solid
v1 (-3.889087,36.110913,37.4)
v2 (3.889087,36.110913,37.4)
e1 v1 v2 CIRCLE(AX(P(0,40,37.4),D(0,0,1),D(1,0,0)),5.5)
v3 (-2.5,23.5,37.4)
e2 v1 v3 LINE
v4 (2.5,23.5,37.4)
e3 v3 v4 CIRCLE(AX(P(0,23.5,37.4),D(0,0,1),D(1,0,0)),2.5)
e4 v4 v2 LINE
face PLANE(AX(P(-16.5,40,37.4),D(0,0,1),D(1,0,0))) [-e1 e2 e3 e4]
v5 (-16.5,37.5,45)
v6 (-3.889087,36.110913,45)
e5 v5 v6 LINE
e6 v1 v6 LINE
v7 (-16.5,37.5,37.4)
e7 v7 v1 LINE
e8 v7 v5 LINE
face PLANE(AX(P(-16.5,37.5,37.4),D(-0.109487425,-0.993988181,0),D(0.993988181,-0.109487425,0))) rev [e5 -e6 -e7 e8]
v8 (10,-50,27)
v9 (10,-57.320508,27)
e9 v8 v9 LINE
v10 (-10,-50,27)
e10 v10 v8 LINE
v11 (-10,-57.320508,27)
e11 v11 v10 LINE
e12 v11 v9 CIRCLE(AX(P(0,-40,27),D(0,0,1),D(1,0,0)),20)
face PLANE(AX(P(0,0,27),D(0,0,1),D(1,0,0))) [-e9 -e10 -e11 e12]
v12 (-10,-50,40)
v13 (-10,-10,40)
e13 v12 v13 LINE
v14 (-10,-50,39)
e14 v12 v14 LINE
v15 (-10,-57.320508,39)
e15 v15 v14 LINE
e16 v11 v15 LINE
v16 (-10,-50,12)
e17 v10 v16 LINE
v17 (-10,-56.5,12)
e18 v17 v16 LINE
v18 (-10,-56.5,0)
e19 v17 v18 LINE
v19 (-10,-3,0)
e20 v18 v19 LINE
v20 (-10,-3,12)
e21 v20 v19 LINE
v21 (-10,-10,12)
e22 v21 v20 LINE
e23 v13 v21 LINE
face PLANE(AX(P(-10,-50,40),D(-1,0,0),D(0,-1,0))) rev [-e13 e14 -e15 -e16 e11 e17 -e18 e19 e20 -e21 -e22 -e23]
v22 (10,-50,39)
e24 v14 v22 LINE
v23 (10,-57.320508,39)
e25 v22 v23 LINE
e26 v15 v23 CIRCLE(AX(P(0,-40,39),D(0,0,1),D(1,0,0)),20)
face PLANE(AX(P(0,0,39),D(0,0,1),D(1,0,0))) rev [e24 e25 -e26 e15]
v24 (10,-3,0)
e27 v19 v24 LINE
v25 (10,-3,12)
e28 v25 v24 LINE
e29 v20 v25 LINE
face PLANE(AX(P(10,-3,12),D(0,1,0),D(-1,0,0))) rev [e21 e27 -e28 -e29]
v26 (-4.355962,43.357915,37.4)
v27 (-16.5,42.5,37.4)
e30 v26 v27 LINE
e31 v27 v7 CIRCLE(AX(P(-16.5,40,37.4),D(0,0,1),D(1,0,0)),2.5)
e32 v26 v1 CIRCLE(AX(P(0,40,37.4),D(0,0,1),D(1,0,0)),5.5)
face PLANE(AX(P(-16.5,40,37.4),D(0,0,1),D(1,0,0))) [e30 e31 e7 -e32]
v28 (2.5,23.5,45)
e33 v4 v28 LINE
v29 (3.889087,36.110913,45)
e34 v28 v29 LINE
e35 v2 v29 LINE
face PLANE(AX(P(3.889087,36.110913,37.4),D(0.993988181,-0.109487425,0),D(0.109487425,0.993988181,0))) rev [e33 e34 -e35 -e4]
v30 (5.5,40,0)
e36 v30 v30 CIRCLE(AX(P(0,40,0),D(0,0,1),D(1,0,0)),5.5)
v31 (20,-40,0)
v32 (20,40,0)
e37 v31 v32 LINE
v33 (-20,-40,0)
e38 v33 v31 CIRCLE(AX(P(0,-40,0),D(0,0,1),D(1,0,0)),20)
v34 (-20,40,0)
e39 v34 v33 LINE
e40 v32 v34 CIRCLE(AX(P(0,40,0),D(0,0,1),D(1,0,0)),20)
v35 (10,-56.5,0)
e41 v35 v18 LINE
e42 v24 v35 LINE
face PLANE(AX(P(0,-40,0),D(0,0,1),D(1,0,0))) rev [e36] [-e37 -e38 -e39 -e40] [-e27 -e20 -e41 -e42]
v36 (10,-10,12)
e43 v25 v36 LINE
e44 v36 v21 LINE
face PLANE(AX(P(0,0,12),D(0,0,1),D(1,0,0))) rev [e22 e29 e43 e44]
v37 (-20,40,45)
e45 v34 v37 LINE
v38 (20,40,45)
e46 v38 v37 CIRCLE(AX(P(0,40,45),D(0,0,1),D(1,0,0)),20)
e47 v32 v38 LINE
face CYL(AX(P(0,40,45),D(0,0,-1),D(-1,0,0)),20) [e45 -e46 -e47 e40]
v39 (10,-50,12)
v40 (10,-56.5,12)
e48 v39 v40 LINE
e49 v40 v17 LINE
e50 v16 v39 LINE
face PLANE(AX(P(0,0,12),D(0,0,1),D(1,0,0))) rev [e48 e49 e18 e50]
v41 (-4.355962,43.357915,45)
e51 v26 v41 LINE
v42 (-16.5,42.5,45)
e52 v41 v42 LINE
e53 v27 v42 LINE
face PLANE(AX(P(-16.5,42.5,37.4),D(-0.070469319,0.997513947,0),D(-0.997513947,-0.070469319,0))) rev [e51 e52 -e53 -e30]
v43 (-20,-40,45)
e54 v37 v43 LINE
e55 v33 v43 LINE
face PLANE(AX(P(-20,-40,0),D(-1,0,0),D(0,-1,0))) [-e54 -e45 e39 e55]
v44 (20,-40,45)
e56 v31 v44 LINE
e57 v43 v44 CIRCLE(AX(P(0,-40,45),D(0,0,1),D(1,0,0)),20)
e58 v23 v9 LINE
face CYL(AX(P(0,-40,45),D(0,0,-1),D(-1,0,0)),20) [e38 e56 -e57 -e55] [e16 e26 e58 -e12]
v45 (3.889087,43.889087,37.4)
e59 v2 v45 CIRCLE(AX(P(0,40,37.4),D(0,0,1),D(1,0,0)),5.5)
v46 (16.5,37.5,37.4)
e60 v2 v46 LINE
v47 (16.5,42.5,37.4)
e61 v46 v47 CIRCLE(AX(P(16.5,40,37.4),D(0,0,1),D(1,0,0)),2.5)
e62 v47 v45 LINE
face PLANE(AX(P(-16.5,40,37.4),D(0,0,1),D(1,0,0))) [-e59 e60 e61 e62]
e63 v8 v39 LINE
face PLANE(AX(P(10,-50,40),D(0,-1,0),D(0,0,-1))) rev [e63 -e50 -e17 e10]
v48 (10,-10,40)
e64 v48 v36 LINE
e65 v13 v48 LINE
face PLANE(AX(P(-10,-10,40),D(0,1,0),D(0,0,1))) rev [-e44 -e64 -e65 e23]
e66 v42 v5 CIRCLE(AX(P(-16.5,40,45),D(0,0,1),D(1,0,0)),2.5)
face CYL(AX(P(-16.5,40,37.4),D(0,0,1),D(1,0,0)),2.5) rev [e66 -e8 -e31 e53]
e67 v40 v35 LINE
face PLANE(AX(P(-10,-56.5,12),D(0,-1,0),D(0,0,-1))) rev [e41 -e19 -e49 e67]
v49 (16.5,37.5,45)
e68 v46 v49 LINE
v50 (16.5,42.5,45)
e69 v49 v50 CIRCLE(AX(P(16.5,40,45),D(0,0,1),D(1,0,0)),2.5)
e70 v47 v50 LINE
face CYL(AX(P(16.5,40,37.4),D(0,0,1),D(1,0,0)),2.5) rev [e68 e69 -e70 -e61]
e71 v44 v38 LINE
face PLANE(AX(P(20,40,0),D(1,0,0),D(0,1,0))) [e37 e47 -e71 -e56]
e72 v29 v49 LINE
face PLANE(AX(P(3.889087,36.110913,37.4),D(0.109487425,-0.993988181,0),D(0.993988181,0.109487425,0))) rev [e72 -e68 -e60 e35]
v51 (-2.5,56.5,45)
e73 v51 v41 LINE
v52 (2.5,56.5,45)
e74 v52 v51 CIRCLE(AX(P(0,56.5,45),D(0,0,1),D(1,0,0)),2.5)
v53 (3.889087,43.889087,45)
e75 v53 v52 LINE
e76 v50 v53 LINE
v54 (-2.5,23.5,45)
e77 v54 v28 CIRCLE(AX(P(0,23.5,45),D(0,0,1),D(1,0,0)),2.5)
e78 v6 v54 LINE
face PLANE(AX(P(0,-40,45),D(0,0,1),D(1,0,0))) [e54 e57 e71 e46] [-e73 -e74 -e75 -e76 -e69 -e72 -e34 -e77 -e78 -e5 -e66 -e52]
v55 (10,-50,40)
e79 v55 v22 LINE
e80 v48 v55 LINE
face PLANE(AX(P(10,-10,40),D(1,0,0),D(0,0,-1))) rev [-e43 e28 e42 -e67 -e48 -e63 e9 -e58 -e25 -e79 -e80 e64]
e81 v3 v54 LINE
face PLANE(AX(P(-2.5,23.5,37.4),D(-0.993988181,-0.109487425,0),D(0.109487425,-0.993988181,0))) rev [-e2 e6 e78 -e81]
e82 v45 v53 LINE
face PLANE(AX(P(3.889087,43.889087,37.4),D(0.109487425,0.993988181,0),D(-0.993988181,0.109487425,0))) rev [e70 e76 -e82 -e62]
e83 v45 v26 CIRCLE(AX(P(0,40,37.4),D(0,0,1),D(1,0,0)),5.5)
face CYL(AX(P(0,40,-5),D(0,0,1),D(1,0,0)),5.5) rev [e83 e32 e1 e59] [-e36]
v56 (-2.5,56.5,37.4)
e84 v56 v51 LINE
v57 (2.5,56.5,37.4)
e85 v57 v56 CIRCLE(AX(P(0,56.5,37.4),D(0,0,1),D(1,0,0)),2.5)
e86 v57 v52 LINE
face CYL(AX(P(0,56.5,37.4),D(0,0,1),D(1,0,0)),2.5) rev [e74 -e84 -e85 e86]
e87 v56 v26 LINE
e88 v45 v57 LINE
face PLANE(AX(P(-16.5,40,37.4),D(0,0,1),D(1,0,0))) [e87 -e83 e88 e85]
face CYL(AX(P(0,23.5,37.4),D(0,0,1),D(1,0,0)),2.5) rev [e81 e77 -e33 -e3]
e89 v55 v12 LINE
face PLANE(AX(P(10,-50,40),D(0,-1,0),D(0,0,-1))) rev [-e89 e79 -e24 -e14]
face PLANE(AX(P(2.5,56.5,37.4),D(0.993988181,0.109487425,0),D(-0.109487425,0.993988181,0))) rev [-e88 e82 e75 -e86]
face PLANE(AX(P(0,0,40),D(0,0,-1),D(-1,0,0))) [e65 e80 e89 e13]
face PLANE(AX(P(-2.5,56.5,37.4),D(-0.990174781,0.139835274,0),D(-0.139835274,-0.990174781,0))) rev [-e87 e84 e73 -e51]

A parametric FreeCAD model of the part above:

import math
import FreeCAD as App
import Part
import Sketcher
from FreeCAD import Vector


def add_polygon(sketch, points):
    """Adds a closed chain of lines whose ends are joined by coincident constraints."""
    first, n = sketch.GeometryCount, len(points)
    for a, b in zip(points, points[1:] + points[:1]):
        sketch.addGeometry(Part.LineSegment(App.Vector(*a, 0), App.Vector(*b, 0)), False)
    for i in range(n):
        sketch.addConstraint(Sketcher.Constraint("Coincident", first + i, 2, first + (i + 1) % n, 1))

doc = App.newDocument("Part")
params = doc.addObject("Spreadsheet::Sheet", "Params")
for row, (alias, value) in enumerate([
    ("sketch1_diameter", "40 mm"),
    ("pad1_length", "45 mm"),
    ("sketch2_diameter", "40 mm"),
    ("pad2_length", "45 mm"),
    ("sketch3_width", "40 mm"),
    ("sketch3_height", "80 mm"),
    ("pad3_length", "45 mm"),
    ("sketch4_radius", "2.5 mm"),
    ("pocket1_length", "7.6 mm"),
    ("sketch5_diameter", "11 mm"),
    ("pocket2_length", "50 mm"),
    ("sketch6_width", "20 mm"),
    ("sketch6_height", "40 mm"),
    ("pocket3_length", "40 mm"),
    ("sketch7_width", "20 mm"),
    ("sketch7_height", "7 mm"),
    ("sketch7_height2", "6.5 mm"),
    ("pocket4_length", "12 mm"),
    ("sketch8_width", "20 mm"),
    ("pocket5_length", "12 mm"),
], start=1):
    params.set(f"A{row}", alias)
    params.set(f"B{row}", "=" + value)
    params.setAlias(f"B{row}", alias)

body = doc.addObject("PartDesign::Body", "Body")

# Sketch on XY plane
sketch1 = body.newObject("Sketcher::SketchObject", "Sketch")
sketch1.AttachmentSupport = (doc.getObject("XY_Plane"), [""])
sketch1.MapMode = "FlatFace"
sketch1.addGeometry(Part.Circle(Vector(0, -40, 0), Vector(0, 0, 1), 20), False)
sketch1.addConstraint(Sketcher.Constraint("PointOnObject", 0, 3, -2))
sketch1.addConstraint(Sketcher.Constraint("Diameter", 0, 40.0))
sketch1.addConstraint(Sketcher.Constraint("DistanceY", 0, 3, -1, 1, 40.0))
sketch1.setExpression("Constraints[1]", "Params.sketch1_diameter")
pad1 = body.newObject("PartDesign::Pad", "Pad")
pad1.Profile = sketch1
pad1.setExpression("Length", "Params.pad1_length")
body2 = doc.addObject("PartDesign::Body", "Body001")

# Sketch on XY plane
sketch2 = body2.newObject("Sketcher::SketchObject", "Sketch001")
sketch2.AttachmentSupport = (doc.getObject("XY_Plane001"), [""])
sketch2.MapMode = "FlatFace"
sketch2.addGeometry(Part.Circle(Vector(0, 40, 0), Vector(0, 0, 1), 20), False)
sketch2.addConstraint(Sketcher.Constraint("PointOnObject", 0, 3, -2))
sketch2.addConstraint(Sketcher.Constraint("Diameter", 0, 40.0))
sketch2.addConstraint(Sketcher.Constraint("DistanceY", -1, 1, 0, 3, 40.0))
sketch2.setExpression("Constraints[1]", "Params.sketch2_diameter")
pad2 = body2.newObject("PartDesign::Pad", "Pad001")
pad2.Profile = sketch2
pad2.setExpression("Length", "Params.pad2_length")
body.AllowCompound = True
doc.recompute()

boolean = body.newObject("PartDesign::Boolean", "Boolean")
boolean.Type = "Fuse"
boolean.addObjects([body2])

# Sketch on XY plane
sketch3 = body.newObject("Sketcher::SketchObject", "Sketch002")
sketch3.AttachmentSupport = (doc.getObject("XY_Plane"), [""])
sketch3.MapMode = "FlatFace"
sketch3.AttachmentOffset = App.Placement(Vector(0, 0, 45), App.Rotation())
add_polygon(sketch3, [(-20, 40), (-20, -40), (20, -40), (20, 40)])  # lines 0-3
sketch3.addConstraint(Sketcher.Constraint("Vertical", 0))
sketch3.addConstraint(Sketcher.Constraint("Horizontal", 1))
sketch3.addConstraint(Sketcher.Constraint("Vertical", 2))
sketch3.addConstraint(Sketcher.Constraint("Horizontal", 3))
sketch3.addConstraint(Sketcher.Constraint("Symmetric", 0, 2, 2, 2, -1, 1))
sketch3.addConstraint(Sketcher.Constraint("DistanceX", 1, 1, 1, 2, 40.0))
sketch3.addConstraint(Sketcher.Constraint("DistanceY", 0, 2, 0, 1, 80.0))
sketch3.setExpression("Constraints[9]", "Params.sketch3_width")
sketch3.setExpression("Constraints[10]", "Params.sketch3_height")
pad3 = body.newObject("PartDesign::Pad", "Pad002")
pad3.Profile = sketch3
pad3.setExpression("Length", "Params.pad3_length")
pad3.Reversed = True

# Sketch on XY plane
sketch4 = body.newObject("Sketcher::SketchObject", "Sketch003")
sketch4.AttachmentSupport = (doc.getObject("XY_Plane"), [""])
sketch4.MapMode = "FlatFace"
sketch4.AttachmentOffset = App.Placement(Vector(0, 0, 45), App.Rotation())
sketch4.addGeometry(Part.LineSegment(Vector(-4.355962, 43.357915, 0), Vector(-16.5, 42.5, 0)), False)
sketch4.addGeometry(Part.ArcOfCircle(Part.Circle(Vector(-16.5, 40, 0), Vector(0, 0, 1), 2.5), math.radians(90), math.radians(270)), False)
sketch4.addGeometry(Part.LineSegment(Vector(-16.5, 37.5, 0), Vector(-3.889087, 36.110913, 0)), False)
sketch4.addGeometry(Part.LineSegment(Vector(-3.889087, 36.110913, 0), Vector(-2.5, 23.5, 0)), False)
sketch4.addGeometry(Part.ArcOfCircle(Part.Circle(Vector(0, 23.5, 0), Vector(0, 0, 1), 2.5), math.radians(180), math.radians(360)), False)
sketch4.addGeometry(Part.LineSegment(Vector(2.5, 23.5, 0), Vector(3.889087, 36.110913, 0)), False)
sketch4.addGeometry(Part.LineSegment(Vector(3.889087, 36.110913, 0), Vector(16.5, 37.5, 0)), False)
sketch4.addGeometry(Part.ArcOfCircle(Part.Circle(Vector(16.5, 40, 0), Vector(0, 0, 1), 2.5), math.radians(-90), math.radians(90)), False)
sketch4.addGeometry(Part.LineSegment(Vector(16.5, 42.5, 0), Vector(3.889087, 43.889087, 0)), False)
sketch4.addGeometry(Part.LineSegment(Vector(3.889087, 43.889087, 0), Vector(2.5, 56.5, 0)), False)
sketch4.addGeometry(Part.ArcOfCircle(Part.Circle(Vector(0, 56.5, 0), Vector(0, 0, 1), 2.5), math.radians(0), math.radians(180)), False)
sketch4.addGeometry(Part.LineSegment(Vector(-2.5, 56.5, 0), Vector(-4.355962, 43.357915, 0)), False)
sketch4.addConstraint(Sketcher.Constraint("Coincident", 0, 2, 1, 1))
sketch4.addConstraint(Sketcher.Constraint("Coincident", 1, 2, 2, 1))
sketch4.addConstraint(Sketcher.Constraint("Coincident", 2, 2, 3, 1))
sketch4.addConstraint(Sketcher.Constraint("Coincident", 3, 2, 4, 1))
sketch4.addConstraint(Sketcher.Constraint("Coincident", 4, 2, 5, 1))
sketch4.addConstraint(Sketcher.Constraint("Coincident", 5, 2, 6, 1))
sketch4.addConstraint(Sketcher.Constraint("Coincident", 6, 2, 7, 1))
sketch4.addConstraint(Sketcher.Constraint("Coincident", 7, 2, 8, 1))
sketch4.addConstraint(Sketcher.Constraint("Coincident", 8, 2, 9, 1))
sketch4.addConstraint(Sketcher.Constraint("Coincident", 9, 2, 10, 1))
sketch4.addConstraint(Sketcher.Constraint("Coincident", 10, 2, 11, 1))
sketch4.addConstraint(Sketcher.Constraint("Coincident", 11, 2, 0, 1))
sketch4.addConstraint(Sketcher.Constraint("Equal", 1, 4))
sketch4.addConstraint(Sketcher.Constraint("Equal", 4, 7))
sketch4.addConstraint(Sketcher.Constraint("Equal", 7, 10))
sketch4.addConstraint(Sketcher.Constraint("Symmetric", 1, 3, 7, 3, -2))
sketch4.addConstraint(Sketcher.Constraint("Symmetric", 3, 2, 4, 2, -2))
sketch4.addConstraint(Sketcher.Constraint("Symmetric", 2, 2, 5, 2, -2))
sketch4.addConstraint(Sketcher.Constraint("Symmetric", 9, 2, 10, 2, -2))
sketch4.addConstraint(Sketcher.Constraint("Perpendicular", 2, 5))
sketch4.addConstraint(Sketcher.Constraint("Perpendicular", 3, 6))
sketch4.addConstraint(Sketcher.Constraint("Perpendicular", 5, 8))
sketch4.addConstraint(Sketcher.Constraint("Perpendicular", 6, 9))
sketch4.addConstraint(Sketcher.Constraint("Horizontal", 4, 3, 3, 2))
sketch4.addConstraint(Sketcher.Constraint("Horizontal", 10, 3, 9, 2))
sketch4.addConstraint(Sketcher.Constraint("Vertical", 1, 3, 0, 2))
sketch4.addConstraint(Sketcher.Constraint("Vertical", 0, 2, 1, 2))
sketch4.addConstraint(Sketcher.Constraint("Vertical", 6, 2, 7, 2))
sketch4.addConstraint(Sketcher.Constraint("Vertical", 5, 2, 8, 2))
sketch4.addConstraint(Sketcher.Constraint("Equal", 2, 3))
sketch4.addConstraint(Sketcher.Constraint("Radius", 1, 2.5))
sketch4.addConstraint(Sketcher.Constraint("DistanceY", -1, 1, 1, 3, 40.0))
sketch4.addConstraint(Sketcher.Constraint("DistanceX", 1, 3, 7, 3, 33.0))
sketch4.addConstraint(Sketcher.Constraint("Distance", 11, 13.27249))
sketch4.addConstraint(Sketcher.Constraint("DistanceX", 11, 2, 8, 2, 8.24505))
sketch4.addConstraint(Sketcher.Constraint("Distance", 0, 12.174304))
sketch4.setExpression("Constraints[30]", "Params.sketch4_radius")
pocket1 = body.newObject("PartDesign::Pocket", "Pocket")
pocket1.Profile = sketch4
pocket1.setExpression("Length", "Params.pocket1_length")

# Sketch on XY plane
sketch5 = body.newObject("Sketcher::SketchObject", "Sketch004")
sketch5.AttachmentSupport = (doc.getObject("XY_Plane"), [""])
sketch5.MapMode = "FlatFace"
sketch5.AttachmentOffset = App.Placement(Vector(0, 0, 45), App.Rotation())
sketch5.addGeometry(Part.Circle(Vector(0, 40, 0), Vector(0, 0, 1), 5.5), False)
sketch5.addConstraint(Sketcher.Constraint("PointOnObject", 0, 3, -2))
sketch5.addConstraint(Sketcher.Constraint("Diameter", 0, 11.0))
sketch5.addConstraint(Sketcher.Constraint("DistanceY", -1, 1, 0, 3, 40.0))
sketch5.setExpression("Constraints[1]", "Params.sketch5_diameter")
pocket2 = body.newObject("PartDesign::Pocket", "Pocket001")
pocket2.Profile = sketch5
pocket2.setExpression("Length", "Params.pocket2_length")

# Sketch on XY plane
sketch6 = body.newObject("Sketcher::SketchObject", "Sketch005")
sketch6.AttachmentSupport = (doc.getObject("XY_Plane"), [""])
sketch6.MapMode = "FlatFace"
add_polygon(sketch6, [(-10, -50), (-10, -10), (10, -10), (10, -50)])  # lines 0-3
sketch6.addConstraint(Sketcher.Constraint("Vertical", 0))
sketch6.addConstraint(Sketcher.Constraint("Horizontal", 1))
sketch6.addConstraint(Sketcher.Constraint("Vertical", 2))
sketch6.addConstraint(Sketcher.Constraint("Horizontal", 3))
sketch6.addConstraint(Sketcher.Constraint("DistanceX", 1, 1, 1, 2, 20.0))
sketch6.addConstraint(Sketcher.Constraint("DistanceY", 0, 1, 0, 2, 40.0))
sketch6.addConstraint(Sketcher.Constraint("DistanceX", 0, 2, -1, 1, 10.0))
sketch6.addConstraint(Sketcher.Constraint("DistanceY", 0, 2, -1, 1, 10.0))
sketch6.setExpression("Constraints[8]", "Params.sketch6_width")
sketch6.setExpression("Constraints[9]", "Params.sketch6_height")
pocket3 = body.newObject("PartDesign::Pocket", "Pocket002")
pocket3.Profile = sketch6
pocket3.setExpression("Length", "Params.pocket3_length")
pocket3.Reversed = True

# Sketch on XY plane
sketch7 = body.newObject("Sketcher::SketchObject", "Sketch006")
sketch7.AttachmentSupport = (doc.getObject("XY_Plane"), [""])
sketch7.MapMode = "FlatFace"
add_polygon(sketch7, [(-10, -56.5), (-10, -50), (10, -50), (10, -56.5)])  # lines 0-3
add_polygon(sketch7, [(-10, -10), (-10, -3), (10, -3), (10, -10)])  # lines 4-7
sketch7.addConstraint(Sketcher.Constraint("Vertical", 0))
sketch7.addConstraint(Sketcher.Constraint("Horizontal", 1))
sketch7.addConstraint(Sketcher.Constraint("Vertical", 2))
sketch7.addConstraint(Sketcher.Constraint("Horizontal", 3))
sketch7.addConstraint(Sketcher.Constraint("Vertical", 4))
sketch7.addConstraint(Sketcher.Constraint("Horizontal", 5))
sketch7.addConstraint(Sketcher.Constraint("Vertical", 6))
sketch7.addConstraint(Sketcher.Constraint("Horizontal", 7))
sketch7.addConstraint(Sketcher.Constraint("Vertical", 3, 2, 4, 2))
sketch7.addConstraint(Sketcher.Constraint("Vertical", 2, 2, 5, 2))
sketch7.addConstraint(Sketcher.Constraint("DistanceX", 1, 1, 1, 2, 20.0))
sketch7.addConstraint(Sketcher.Constraint("DistanceY", 4, 1, 4, 2, 7.0))
sketch7.addConstraint(Sketcher.Constraint("DistanceY", 0, 1, 0, 2, 6.5))
sketch7.addConstraint(Sketcher.Constraint("DistanceX", 0, 2, -1, 1, 10.0))
sketch7.addConstraint(Sketcher.Constraint("DistanceY", 0, 2, -1, 1, 50.0))
sketch7.addConstraint(Sketcher.Constraint("DistanceY", 4, 2, -1, 1, 3.0))
sketch7.setExpression("Constraints[18]", "Params.sketch7_width")
sketch7.setExpression("Constraints[19]", "Params.sketch7_height")
sketch7.setExpression("Constraints[20]", "Params.sketch7_height2")
pocket4 = body.newObject("PartDesign::Pocket", "Pocket003")
pocket4.Profile = sketch7
pocket4.setExpression("Length", "Params.pocket4_length")
pocket4.Reversed = True

# Sketch on XY plane
sketch8 = body.newObject("Sketcher::SketchObject", "Sketch007")
sketch8.AttachmentSupport = (doc.getObject("XY_Plane"), [""])
sketch8.MapMode = "FlatFace"
sketch8.AttachmentOffset = App.Placement(Vector(0, 0, 27), App.Rotation())
add_polygon(sketch8, [(-10, -63.910938), (-10, -50), (10, -50), (10, -63.910938)])  # lines 0-3
sketch8.addConstraint(Sketcher.Constraint("Vertical", 0))
sketch8.addConstraint(Sketcher.Constraint("Horizontal", 1))
sketch8.addConstraint(Sketcher.Constraint("Vertical", 2))
sketch8.addConstraint(Sketcher.Constraint("Horizontal", 3))
sketch8.addConstraint(Sketcher.Constraint("DistanceX", 1, 1, 1, 2, 20.0))
sketch8.addConstraint(Sketcher.Constraint("DistanceX", 0, 2, -1, 1, 10.0))
sketch8.addConstraint(Sketcher.Constraint("DistanceY", 0, 2, -1, 1, 50.0))
sketch8.addConstraint(Sketcher.Constraint("DistanceY", 0, 1, 0, 2, 13.910938))
sketch8.setExpression("Constraints[8]", "Params.sketch8_width")
pocket5 = body.newObject("PartDesign::Pocket", "Pocket004")
pocket5.Profile = sketch8
pocket5.setExpression("Length", "Params.pocket5_length")
pocket5.Reversed = True

doc.recompute()
